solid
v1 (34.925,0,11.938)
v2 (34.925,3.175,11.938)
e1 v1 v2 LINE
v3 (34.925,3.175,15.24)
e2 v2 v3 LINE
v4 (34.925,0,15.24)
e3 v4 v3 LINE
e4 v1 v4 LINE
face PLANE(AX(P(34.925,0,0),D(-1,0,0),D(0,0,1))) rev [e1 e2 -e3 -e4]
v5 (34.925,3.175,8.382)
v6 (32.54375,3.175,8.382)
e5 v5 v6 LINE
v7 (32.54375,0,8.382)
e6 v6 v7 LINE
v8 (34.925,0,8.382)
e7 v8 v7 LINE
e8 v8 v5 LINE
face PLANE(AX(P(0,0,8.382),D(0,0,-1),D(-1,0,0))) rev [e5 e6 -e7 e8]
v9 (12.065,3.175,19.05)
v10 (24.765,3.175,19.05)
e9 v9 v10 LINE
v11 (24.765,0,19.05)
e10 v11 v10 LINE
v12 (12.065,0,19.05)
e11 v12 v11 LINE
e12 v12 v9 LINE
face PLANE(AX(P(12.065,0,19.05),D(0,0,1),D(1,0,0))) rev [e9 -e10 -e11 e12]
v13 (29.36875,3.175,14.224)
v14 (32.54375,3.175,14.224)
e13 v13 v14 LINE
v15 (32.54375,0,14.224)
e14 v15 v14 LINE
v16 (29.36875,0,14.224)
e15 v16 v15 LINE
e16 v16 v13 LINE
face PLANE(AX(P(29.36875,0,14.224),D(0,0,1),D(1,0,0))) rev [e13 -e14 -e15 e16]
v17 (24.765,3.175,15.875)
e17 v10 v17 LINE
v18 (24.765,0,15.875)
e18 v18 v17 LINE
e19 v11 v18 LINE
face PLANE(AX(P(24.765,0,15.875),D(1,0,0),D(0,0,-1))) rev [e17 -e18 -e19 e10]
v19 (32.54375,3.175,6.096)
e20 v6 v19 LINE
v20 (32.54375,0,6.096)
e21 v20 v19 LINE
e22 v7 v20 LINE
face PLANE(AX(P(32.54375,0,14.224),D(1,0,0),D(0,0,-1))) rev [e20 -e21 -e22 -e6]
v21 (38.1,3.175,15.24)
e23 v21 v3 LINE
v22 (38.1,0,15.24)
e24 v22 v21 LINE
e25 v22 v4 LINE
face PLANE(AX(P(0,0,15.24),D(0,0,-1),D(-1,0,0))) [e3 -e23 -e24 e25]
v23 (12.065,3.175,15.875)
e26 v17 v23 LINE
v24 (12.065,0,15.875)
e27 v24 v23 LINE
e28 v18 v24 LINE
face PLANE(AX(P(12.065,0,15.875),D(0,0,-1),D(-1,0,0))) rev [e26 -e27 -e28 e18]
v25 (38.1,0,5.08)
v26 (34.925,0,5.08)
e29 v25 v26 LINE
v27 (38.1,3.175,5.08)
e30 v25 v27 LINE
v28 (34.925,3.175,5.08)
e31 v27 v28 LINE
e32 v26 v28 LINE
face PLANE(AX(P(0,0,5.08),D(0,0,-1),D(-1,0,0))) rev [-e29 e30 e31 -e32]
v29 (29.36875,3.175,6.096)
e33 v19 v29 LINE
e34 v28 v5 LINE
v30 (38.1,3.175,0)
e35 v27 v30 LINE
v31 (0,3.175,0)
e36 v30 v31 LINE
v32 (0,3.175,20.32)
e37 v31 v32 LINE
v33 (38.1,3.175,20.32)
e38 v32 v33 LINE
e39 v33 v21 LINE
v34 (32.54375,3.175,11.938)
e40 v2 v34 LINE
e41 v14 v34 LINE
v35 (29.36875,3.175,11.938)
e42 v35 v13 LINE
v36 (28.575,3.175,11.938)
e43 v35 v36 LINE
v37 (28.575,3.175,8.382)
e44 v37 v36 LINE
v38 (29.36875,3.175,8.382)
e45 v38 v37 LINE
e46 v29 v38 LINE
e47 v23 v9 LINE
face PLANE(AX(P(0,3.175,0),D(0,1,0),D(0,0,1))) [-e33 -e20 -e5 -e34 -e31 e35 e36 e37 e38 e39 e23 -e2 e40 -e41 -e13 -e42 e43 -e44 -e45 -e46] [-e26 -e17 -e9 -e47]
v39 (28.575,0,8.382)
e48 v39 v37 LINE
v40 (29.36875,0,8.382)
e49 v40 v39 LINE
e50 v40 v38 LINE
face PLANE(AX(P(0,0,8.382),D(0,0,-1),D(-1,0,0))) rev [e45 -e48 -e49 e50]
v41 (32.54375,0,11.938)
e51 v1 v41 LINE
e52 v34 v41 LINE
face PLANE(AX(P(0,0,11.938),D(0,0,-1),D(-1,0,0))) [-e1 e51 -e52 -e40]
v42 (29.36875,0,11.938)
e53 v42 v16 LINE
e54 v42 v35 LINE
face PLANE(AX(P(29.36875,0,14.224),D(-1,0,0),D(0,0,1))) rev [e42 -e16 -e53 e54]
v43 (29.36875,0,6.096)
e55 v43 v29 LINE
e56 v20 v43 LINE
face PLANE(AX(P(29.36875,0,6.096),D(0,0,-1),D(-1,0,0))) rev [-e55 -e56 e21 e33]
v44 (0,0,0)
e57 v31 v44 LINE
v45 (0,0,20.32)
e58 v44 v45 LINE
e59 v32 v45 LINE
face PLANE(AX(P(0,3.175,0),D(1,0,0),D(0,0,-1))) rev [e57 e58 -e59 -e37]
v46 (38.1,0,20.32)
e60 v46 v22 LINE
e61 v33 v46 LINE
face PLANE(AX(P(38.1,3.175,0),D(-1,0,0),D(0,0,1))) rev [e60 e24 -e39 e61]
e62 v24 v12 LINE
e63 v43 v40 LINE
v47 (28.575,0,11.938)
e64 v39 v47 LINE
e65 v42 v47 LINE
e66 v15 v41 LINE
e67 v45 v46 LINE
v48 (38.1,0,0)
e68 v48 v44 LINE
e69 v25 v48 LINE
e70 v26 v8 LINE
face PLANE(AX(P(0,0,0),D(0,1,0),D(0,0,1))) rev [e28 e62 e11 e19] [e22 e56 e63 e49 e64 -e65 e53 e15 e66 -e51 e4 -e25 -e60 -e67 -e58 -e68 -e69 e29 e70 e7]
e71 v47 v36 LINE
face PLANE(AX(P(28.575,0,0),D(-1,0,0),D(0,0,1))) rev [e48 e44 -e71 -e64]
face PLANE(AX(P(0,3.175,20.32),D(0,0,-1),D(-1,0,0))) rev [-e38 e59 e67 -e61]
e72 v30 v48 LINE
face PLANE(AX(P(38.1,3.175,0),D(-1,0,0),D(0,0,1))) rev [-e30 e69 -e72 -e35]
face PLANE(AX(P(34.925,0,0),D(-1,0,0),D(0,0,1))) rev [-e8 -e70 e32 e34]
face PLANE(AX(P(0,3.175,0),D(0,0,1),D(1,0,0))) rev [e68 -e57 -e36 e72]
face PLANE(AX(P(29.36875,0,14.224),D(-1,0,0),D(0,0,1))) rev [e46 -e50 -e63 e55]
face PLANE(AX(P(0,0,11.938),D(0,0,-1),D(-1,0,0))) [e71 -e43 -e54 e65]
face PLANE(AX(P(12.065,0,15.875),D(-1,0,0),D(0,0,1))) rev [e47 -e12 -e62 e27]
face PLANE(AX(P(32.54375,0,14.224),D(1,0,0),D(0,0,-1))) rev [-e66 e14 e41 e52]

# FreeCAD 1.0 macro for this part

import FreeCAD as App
import Part
import Sketcher
from FreeCAD import Vector
Q = App.Units.Quantity


def add_polygon(sketch, points):
    """Adds a closed chain of lines whose ends are joined by coincident constraints."""
    first, n = sketch.GeometryCount, len(points)
    for a, b in zip(points, points[1:] + points[:1]):
        sketch.addGeometry(Part.LineSegment(App.Vector(*a, 0), App.Vector(*b, 0)), False)
    for i in range(n):
        sketch.addConstraint(Sketcher.Constraint("Coincident", first + i, 2, first + (i + 1) % n, 1))

doc = App.newDocument("Part")
body = doc.addObject("PartDesign::Body", "Body")

# Sketch on XZ plane
sketch1 = body.newObject("Sketcher::SketchObject", "Sketch")
sketch1.AttachmentSupport = (doc.getObject("XZ_Plane"), [""])
sketch1.MapMode = "FlatFace"
add_polygon(sketch1, [(0, 0), (0, 20), (38, 20), (38, 0)])  # lines 0-3
sketch1.addConstraint(Sketcher.Constraint("Vertical", 0))
sketch1.addConstraint(Sketcher.Constraint("Horizontal", 1))
sketch1.addConstraint(Sketcher.Constraint("Vertical", 2))
sketch1.addConstraint(Sketcher.Constraint("Horizontal", 3))
sketch1.addConstraint(Sketcher.Constraint("Coincident", 3, 2, -1, 1))
sketch1.addConstraint(Sketcher.Constraint("DistanceX", 1, 1, 1, 2, Q("1.5 in")))
sketch1.addConstraint(Sketcher.Constraint("DistanceY", 0, 1, 0, 2, Q("0.8 in")))
pad1 = body.newObject("PartDesign::Pad", "Pad")
pad1.Profile = sketch1
pad1.Length = Q("0.125 in")
pad1.Reversed = True

# Sketch on XZ plane
sketch2 = body.newObject("Sketcher::SketchObject", "Sketch001")
sketch2.AttachmentSupport = (doc.getObject("XZ_Plane"), [""])
sketch2.MapMode = "FlatFace"
sketch2.AttachmentOffset = App.Placement(Vector(0, 0, -0.125 * 25.4), App.Rotation())
add_polygon(sketch2, [(28.6, 8.4), (28.6, 11.9), (34.9, 11.9), (34.9, 15.2), (38.1, 15.2), (38.1, 5.1), (34.9, 5.1), (34.9, 8.4)])  # lines 0-7
sketch2.addConstraint(Sketcher.Constraint("Vertical", 0))
sketch2.addConstraint(Sketcher.Constraint("Horizontal", 1))
sketch2.addConstraint(Sketcher.Constraint("Vertical", 2))
sketch2.addConstraint(Sketcher.Constraint("Horizontal", 3))
sketch2.addConstraint(Sketcher.Constraint("Vertical", 4))
sketch2.addConstraint(Sketcher.Constraint("Horizontal", 5))
sketch2.addConstraint(Sketcher.Constraint("Vertical", 6))
sketch2.addConstraint(Sketcher.Constraint("Horizontal", 7))
sketch2.addConstraint(Sketcher.Constraint("Vertical", 2, 2, 5, 2))
sketch2.addConstraint(Sketcher.Constraint("Equal", 2, 6))
sketch2.addConstraint(Sketcher.Constraint("DistanceY", 4, 2, 4, 1, Q("0.4 in")))
sketch2.addConstraint(Sketcher.Constraint("DistanceX", 1, 1, 1, 2, Q("0.25 in")))
sketch2.addConstraint(Sketcher.Constraint("DistanceY", 0, 1, 0, 2, Q("0.14 in")))
sketch2.addConstraint(Sketcher.Constraint("DistanceY", -1, 1, 2, 2, Q("0.6 in")))
sketch2.addConstraint(Sketcher.Constraint("DistanceX", -1, 1, 3, 2, Q("1.5 in")))
sketch2.addConstraint(Sketcher.Constraint("DistanceX", 3, 1, 3, 2, Q("0.125 in")))
pocket1 = body.newObject("PartDesign::Pocket", "Pocket")
pocket1.Profile = sketch2
pocket1.Length = Q("0.125 in")
pocket1.Reversed = True

# Sketch on XZ plane
sketch3 = body.newObject("Sketcher::SketchObject", "Sketch002")
sketch3.AttachmentSupport = (doc.getObject("XZ_Plane"), [""])
sketch3.MapMode = "FlatFace"
sketch3.AttachmentOffset = App.Placement(Vector(0, 0, -0.125 * 25.4), App.Rotation())
add_polygon(sketch3, [(29.4, 6.1), (29.4, 14.2), (32.5, 14.2), (32.5, 6.1)])  # lines 0-3
sketch3.addConstraint(Sketcher.Constraint("Vertical", 0))
sketch3.addConstraint(Sketcher.Constraint("Horizontal", 1))
sketch3.addConstraint(Sketcher.Constraint("Vertical", 2))
sketch3.addConstraint(Sketcher.Constraint("Horizontal", 3))
sketch3.addConstraint(Sketcher.Constraint("DistanceY", 0, 1, 0, 2, Q("0.32 in")))
sketch3.addConstraint(Sketcher.Constraint("DistanceX", 1, 1, 1, 2, Q("0.125 in")))
sketch3.addConstraint(Sketcher.Constraint("DistanceY", -1, 1, 0, 2, Q("0.56 in")))
sketch3.addConstraint(Sketcher.Constraint("DistanceX", -1, 1, 0, 2, Q("1.15625 in")))
pocket2 = body.newObject("PartDesign::Pocket", "Pocket001")
pocket2.Profile = sketch3
pocket2.Length = Q("0.125 in")
pocket2.Reversed = True

# Sketch on XZ plane
sketch4 = body.newObject("Sketcher::SketchObject", "Sketch003")
sketch4.AttachmentSupport = (doc.getObject("XZ_Plane"), [""])
sketch4.MapMode = "FlatFace"
sketch4.AttachmentOffset = App.Placement(Vector(0, 0, -0.125 * 25.4), App.Rotation())
add_polygon(sketch4, [(12.1, 15.9), (12.1, 19.1), (24.8, 19.1), (24.8, 15.9)])  # lines 0-3
sketch4.addConstraint(Sketcher.Constraint("Vertical", 0))
sketch4.addConstraint(Sketcher.Constraint("Horizontal", 1))
sketch4.addConstraint(Sketcher.Constraint("Vertical", 2))
sketch4.addConstraint(Sketcher.Constraint("Horizontal", 3))
sketch4.addConstraint(Sketcher.Constraint("DistanceX", 1, 1, 1, 2, Q("0.5 in")))
sketch4.addConstraint(Sketcher.Constraint("DistanceY", 0, 1, 0, 2, Q("0.125 in")))
sketch4.addConstraint(Sketcher.Constraint("DistanceY", -1, 1, 0, 2, Q("0.75 in")))
sketch4.addConstraint(Sketcher.Constraint("DistanceX", -1, 1, 0, 2, Q("0.475 in")))
pocket3 = body.newObject("PartDesign::Pocket", "Pocket002")
pocket3.Profile = sketch4
pocket3.Length = Q("0.125 in")
pocket3.Reversed = True

doc.recompute()
